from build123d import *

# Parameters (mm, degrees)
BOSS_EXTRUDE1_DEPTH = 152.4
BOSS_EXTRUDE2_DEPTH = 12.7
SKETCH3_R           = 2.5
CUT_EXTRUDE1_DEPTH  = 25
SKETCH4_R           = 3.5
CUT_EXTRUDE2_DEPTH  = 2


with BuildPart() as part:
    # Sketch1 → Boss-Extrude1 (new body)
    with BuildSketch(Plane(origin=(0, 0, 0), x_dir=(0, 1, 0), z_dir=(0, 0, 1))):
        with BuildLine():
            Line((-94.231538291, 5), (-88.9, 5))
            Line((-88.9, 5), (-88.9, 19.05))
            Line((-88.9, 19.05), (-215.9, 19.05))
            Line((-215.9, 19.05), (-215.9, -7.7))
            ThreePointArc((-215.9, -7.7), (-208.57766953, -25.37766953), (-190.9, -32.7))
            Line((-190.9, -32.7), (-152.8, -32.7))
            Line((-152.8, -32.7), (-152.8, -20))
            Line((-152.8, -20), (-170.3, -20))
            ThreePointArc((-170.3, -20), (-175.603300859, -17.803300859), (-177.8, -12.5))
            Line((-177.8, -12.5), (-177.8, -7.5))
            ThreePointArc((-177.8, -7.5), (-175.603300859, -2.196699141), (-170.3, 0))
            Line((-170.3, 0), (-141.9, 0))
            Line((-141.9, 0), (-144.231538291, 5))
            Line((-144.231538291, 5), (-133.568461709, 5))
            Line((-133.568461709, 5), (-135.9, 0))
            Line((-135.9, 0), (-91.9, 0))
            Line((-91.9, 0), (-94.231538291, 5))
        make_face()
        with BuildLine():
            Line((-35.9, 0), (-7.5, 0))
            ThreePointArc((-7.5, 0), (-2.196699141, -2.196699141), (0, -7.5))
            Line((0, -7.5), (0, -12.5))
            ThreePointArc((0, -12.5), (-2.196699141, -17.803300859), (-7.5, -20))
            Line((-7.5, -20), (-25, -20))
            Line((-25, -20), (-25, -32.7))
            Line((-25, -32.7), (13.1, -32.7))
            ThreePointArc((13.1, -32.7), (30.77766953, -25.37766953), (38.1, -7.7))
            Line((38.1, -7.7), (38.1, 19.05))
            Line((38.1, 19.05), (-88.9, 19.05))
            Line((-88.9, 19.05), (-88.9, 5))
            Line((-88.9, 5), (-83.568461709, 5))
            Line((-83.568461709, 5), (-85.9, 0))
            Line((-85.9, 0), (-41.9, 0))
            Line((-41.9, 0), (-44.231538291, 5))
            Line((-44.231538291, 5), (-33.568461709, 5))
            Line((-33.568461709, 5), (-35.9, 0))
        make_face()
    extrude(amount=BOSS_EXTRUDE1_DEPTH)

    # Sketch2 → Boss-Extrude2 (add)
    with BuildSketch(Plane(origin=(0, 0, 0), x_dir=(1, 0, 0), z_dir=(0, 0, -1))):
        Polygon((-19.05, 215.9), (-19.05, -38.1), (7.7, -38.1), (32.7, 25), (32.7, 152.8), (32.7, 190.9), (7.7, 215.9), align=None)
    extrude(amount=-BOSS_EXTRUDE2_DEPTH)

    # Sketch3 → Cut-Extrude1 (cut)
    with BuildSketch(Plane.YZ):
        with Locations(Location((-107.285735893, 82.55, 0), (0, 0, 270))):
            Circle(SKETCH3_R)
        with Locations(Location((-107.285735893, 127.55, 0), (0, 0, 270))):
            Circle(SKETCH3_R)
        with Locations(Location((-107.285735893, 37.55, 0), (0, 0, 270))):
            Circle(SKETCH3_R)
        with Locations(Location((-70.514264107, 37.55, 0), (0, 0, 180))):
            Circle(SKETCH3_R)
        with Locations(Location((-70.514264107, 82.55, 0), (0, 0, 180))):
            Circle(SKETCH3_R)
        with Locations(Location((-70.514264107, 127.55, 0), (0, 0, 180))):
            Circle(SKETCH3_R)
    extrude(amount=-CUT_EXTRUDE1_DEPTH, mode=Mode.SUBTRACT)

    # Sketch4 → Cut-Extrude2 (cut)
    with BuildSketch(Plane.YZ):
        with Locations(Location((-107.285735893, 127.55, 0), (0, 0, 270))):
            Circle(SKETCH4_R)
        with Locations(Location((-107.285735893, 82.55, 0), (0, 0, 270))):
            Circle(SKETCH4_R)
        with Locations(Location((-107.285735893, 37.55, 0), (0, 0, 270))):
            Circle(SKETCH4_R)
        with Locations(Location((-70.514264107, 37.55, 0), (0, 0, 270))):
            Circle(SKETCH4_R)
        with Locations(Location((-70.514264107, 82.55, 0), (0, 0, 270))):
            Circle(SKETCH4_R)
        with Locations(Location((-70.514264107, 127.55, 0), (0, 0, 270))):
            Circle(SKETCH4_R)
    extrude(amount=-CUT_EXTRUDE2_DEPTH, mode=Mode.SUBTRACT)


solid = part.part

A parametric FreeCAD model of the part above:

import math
import FreeCAD as App
import Part
import Sketcher
from FreeCAD import Vector
Q = App.Units.Quantity

doc = App.newDocument("Part")
body = doc.addObject("PartDesign::Body", "Body")

# Sketch on XY plane
sketch1 = body.newObject("Sketcher::SketchObject", "Sketch")
sketch1.AttachmentSupport = (doc.getObject("XY_Plane"), [""])
sketch1.MapMode = "FlatFace"
sketch1.addGeometry([
    Part.LineSegment(Vector(-5, -94.231538, 0), Vector(-5, -83.568462, 0)),  # 0
    Part.LineSegment(Vector(-5, -83.568462, 0), Vector(0, -85.9, 0)),  # 1
    Part.LineSegment(Vector(0, -85.9, 0), Vector(0, -41.9, 0)),  # 2
    Part.LineSegment(Vector(0, -41.9, 0), Vector(-5, -44.231538, 0)),  # 3
    Part.LineSegment(Vector(-5, -44.231538, 0), Vector(-5, -33.568462, 0)),  # 4
    Part.LineSegment(Vector(-5, -33.568462, 0), Vector(0, -35.9, 0)),  # 5
    Part.LineSegment(Vector(0, -35.9, 0), Vector(0, -7.5, 0)),  # 6
    Part.ArcOfCircle(Part.Circle(Vector(7.5, -7.5, 0), Vector(0, 0, 1), 7.5), math.radians(90), math.radians(180)),  # 7
    Part.LineSegment(Vector(7.5, 0, 0), Vector(12.5, 0, 0)),  # 8
    Part.ArcOfCircle(Part.Circle(Vector(12.5, -7.5, 0), Vector(0, 0, 1), 7.5), math.radians(0), math.radians(90)),  # 9
    Part.LineSegment(Vector(20, -7.5, 0), Vector(20, -25, 0)),  # 10
    Part.LineSegment(Vector(20, -25, 0), Vector(32.7, -25, 0)),  # 11
    Part.LineSegment(Vector(32.7, -25, 0), Vector(32.7, 13.1, 0)),  # 12
    Part.ArcOfCircle(Part.Circle(Vector(7.7, 13.1, 0), Vector(0, 0, 1), 25), math.radians(0), math.radians(90)),  # 13
    Part.LineSegment(Vector(7.7, 38.1, 0), Vector(-19.05, 38.1, 0)),  # 14
    Part.LineSegment(Vector(-19.05, 38.1, 0), Vector(-19.05, -215.9, 0)),  # 15
    Part.LineSegment(Vector(-19.05, -215.9, 0), Vector(7.7, -215.9, 0)),  # 16
    Part.ArcOfCircle(Part.Circle(Vector(7.7, -190.9, 0), Vector(0, 0, 1), 25), math.radians(-90), math.radians(0)),  # 17
    Part.LineSegment(Vector(32.7, -190.9, 0), Vector(32.7, -152.8, 0)),  # 18
    Part.LineSegment(Vector(32.7, -152.8, 0), Vector(20, -152.8, 0)),  # 19
    Part.LineSegment(Vector(20, -152.8, 0), Vector(20, -170.3, 0)),  # 20
    Part.ArcOfCircle(Part.Circle(Vector(12.5, -170.3, 0), Vector(0, 0, 1), 7.5), math.radians(-90), math.radians(0)),  # 21
    Part.LineSegment(Vector(12.5, -177.8, 0), Vector(7.5, -177.8, 0)),  # 22
    Part.ArcOfCircle(Part.Circle(Vector(7.5, -170.3, 0), Vector(0, 0, 1), 7.5), math.radians(180), math.radians(270)),  # 23
    Part.LineSegment(Vector(0, -170.3, 0), Vector(0, -141.9, 0)),  # 24
    Part.LineSegment(Vector(0, -141.9, 0), Vector(-5, -144.231538, 0)),  # 25
    Part.LineSegment(Vector(-5, -144.231538, 0), Vector(-5, -133.568462, 0)),  # 26
    Part.LineSegment(Vector(-5, -133.568462, 0), Vector(0, -135.9, 0)),  # 27
    Part.LineSegment(Vector(0, -135.9, 0), Vector(0, -91.9, 0)),  # 28
    Part.LineSegment(Vector(0, -91.9, 0), Vector(-5, -94.231538, 0)),  # 29
], False)
sketch1.addConstraint([
    Sketcher.Constraint("Coincident", 0, 2, 1, 1),
    Sketcher.Constraint("Coincident", 1, 2, 2, 1),
    Sketcher.Constraint("Coincident", 2, 2, 3, 1),
    Sketcher.Constraint("Coincident", 3, 2, 4, 1),
    Sketcher.Constraint("Coincident", 4, 2, 5, 1),
    Sketcher.Constraint("Coincident", 5, 2, 6, 1),
    Sketcher.Constraint("Tangent", 6, 2, 7, 2),
    Sketcher.Constraint("Tangent", 7, 1, 8, 1),
    Sketcher.Constraint("Tangent", 8, 2, 9, 2),
    Sketcher.Constraint("Tangent", 9, 1, 10, 1),
    Sketcher.Constraint("Coincident", 10, 2, 11, 1),
    Sketcher.Constraint("Coincident", 11, 2, 12, 1),
    Sketcher.Constraint("Tangent", 12, 2, 13, 1),
    Sketcher.Constraint("Tangent", 13, 2, 14, 1),
    Sketcher.Constraint("Coincident", 14, 2, 15, 1),
    Sketcher.Constraint("Coincident", 15, 2, 16, 1),
    Sketcher.Constraint("Tangent", 16, 2, 17, 1),
    Sketcher.Constraint("Tangent", 17, 2, 18, 1),
    Sketcher.Constraint("Coincident", 18, 2, 19, 1),
    Sketcher.Constraint("Coincident", 19, 2, 20, 1),
    Sketcher.Constraint("Tangent", 20, 2, 21, 2),
    Sketcher.Constraint("Tangent", 21, 1, 22, 1),
    Sketcher.Constraint("Tangent", 22, 2, 23, 2),
    Sketcher.Constraint("Tangent", 23, 1, 24, 1),
    Sketcher.Constraint("Coincident", 24, 2, 25, 1),
    Sketcher.Constraint("Coincident", 25, 2, 26, 1),
    Sketcher.Constraint("Coincident", 26, 2, 27, 1),
    Sketcher.Constraint("Coincident", 27, 2, 28, 1),
    Sketcher.Constraint("Coincident", 28, 2, 29, 1),
    Sketcher.Constraint("Coincident", 29, 2, 0, 1),
    Sketcher.Constraint("Vertical", 0),
    Sketcher.Constraint("Vertical", 2),
    Sketcher.Constraint("Vertical", 4),
    Sketcher.Constraint("Vertical", 6),
    Sketcher.Constraint("Horizontal", 8),
    Sketcher.Constraint("Vertical", 10),
    Sketcher.Constraint("Horizontal", 11),
    Sketcher.Constraint("Vertical", 12),
    Sketcher.Constraint("Horizontal", 14),
    Sketcher.Constraint("Vertical", 15),
    Sketcher.Constraint("Horizontal", 16),
    Sketcher.Constraint("Vertical", 18),
    Sketcher.Constraint("Horizontal", 19),
    Sketcher.Constraint("Vertical", 20),
    Sketcher.Constraint("Horizontal", 22),
    Sketcher.Constraint("Vertical", 24),
    Sketcher.Constraint("Vertical", 26),
    Sketcher.Constraint("Vertical", 28),
    Sketcher.Constraint("Equal", 7, 9),
    Sketcher.Constraint("Equal", 13, 17),
    Sketcher.Constraint("Equal", 9, 21),
    Sketcher.Constraint("Equal", 21, 23),
    Sketcher.Constraint("PointOnObject", 1, 2, -2),
    Sketcher.Constraint("PointOnObject", 5, 2, -2),
    Sketcher.Constraint("PointOnObject", 7, 1, -1),
    Sketcher.Constraint("PointOnObject", 23, 1, -2),
    Sketcher.Constraint("PointOnObject", 27, 2, -2),
    Sketcher.Constraint("Parallel", 1, 5),
    Sketcher.Constraint("Parallel", 3, 25),
    Sketcher.Constraint("Parallel", 5, 27),
    Sketcher.Constraint("Parallel", 25, 29),
    Sketcher.Constraint("Vertical", 13, 3, 17, 3),
    Sketcher.Constraint("Vertical", 9, 3, 21, 3),
    Sketcher.Constraint("Vertical", 0, 2, 3, 2),
    Sketcher.Constraint("Vertical", 4, 2, 25, 2),
    Sketcher.Constraint("Equal", 0, 4),
    Sketcher.Constraint("Equal", 12, 18),
    Sketcher.Constraint("Equal", 10, 20),
    Sketcher.Constraint("Equal", 6, 24),
    Sketcher.Constraint("Equal", 4, 26),
    Sketcher.Constraint("Equal", 2, 28),
    Sketcher.Constraint("Equal", 1, 3),
    Sketcher.Constraint("Radius", 13, Q("25 mm")),
    Sketcher.Constraint("Radius", 7, Q("7.5 mm")),
    Sketcher.Constraint("DistanceX", 8, 1, 8, 2, Q("5 mm")),
    Sketcher.Constraint("DistanceY", 2, 1, 2, 2, Q("44 mm")),
    Sketcher.Constraint("DistanceY", 15, 2, 15, 1, Q("254 mm")),
    Sketcher.Constraint("Angle", 1, Q("-25 deg")),
    Sketcher.Constraint("DistanceX", 11, 1, 11, 2, Q("12.7 mm")),
    Sketcher.Constraint("DistanceY", 6, 1, 6, 2, Q("28.4 mm")),
    Sketcher.Constraint("DistanceY", 10, 2, 10, 1, Q("17.5 mm")),
    Sketcher.Constraint("DistanceY", 12, 1, 12, 2, Q("38.1 mm")),
    Sketcher.Constraint("DistanceX", 0, 2, -1, 1, Q("5 mm")),
    Sketcher.Constraint("DistanceX", 14, 2, 14, 1, Q("26.75 mm")),
])
pad1 = body.newObject("PartDesign::Pad", "Pad")
pad1.Profile = sketch1
pad1.Length = 152.4

# Sketch on XY plane
sketch2 = body.newObject("Sketcher::SketchObject", "Sketch001")
sketch2.AttachmentSupport = (doc.getObject("XY_Plane"), [""])
sketch2.MapMode = "FlatFace"
sketch2.addGeometry([
    Part.LineSegment(Vector(-19.05, -215.9, 0), Vector(-19.05, 38.1, 0)),  # 0
    Part.LineSegment(Vector(-19.05, 38.1, 0), Vector(7.7, 38.1, 0)),  # 1
    Part.LineSegment(Vector(7.7, 38.1, 0), Vector(32.7, -25, 0)),  # 2
    Part.LineSegment(Vector(32.7, -25, 0), Vector(32.7, -190.9, 0)),  # 3
    Part.LineSegment(Vector(32.7, -190.9, 0), Vector(7.7, -215.9, 0)),  # 4
    Part.LineSegment(Vector(7.7, -215.9, 0), Vector(-19.05, -215.9, 0)),  # 5
], False)
sketch2.addConstraint([
    Sketcher.Constraint("Coincident", 0, 2, 1, 1),
    Sketcher.Constraint("Coincident", 1, 2, 2, 1),
    Sketcher.Constraint("Coincident", 2, 2, 3, 1),
    Sketcher.Constraint("Coincident", 3, 2, 4, 1),
    Sketcher.Constraint("Coincident", 4, 2, 5, 1),
    Sketcher.Constraint("Coincident", 5, 2, 0, 1),
    Sketcher.Constraint("Vertical", 0),
    Sketcher.Constraint("Horizontal", 1),
    Sketcher.Constraint("Vertical", 3),
    Sketcher.Constraint("Horizontal", 5),
    Sketcher.Constraint("Vertical", 1, 2, 4, 2),
    Sketcher.Constraint("DistanceY", 0, 1, 0, 2, Q("254 mm")),
    Sketcher.Constraint("Angle", 4, Q("-135 deg")),
    Sketcher.Constraint("DistanceY", 3, 2, 3, 1, Q("165.9 mm")),
    Sketcher.Constraint("DistanceY", 2, 2, -1, 1, Q("25 mm")),
    Sketcher.Constraint("DistanceX", 1, 2, 2, 2, Q("25 mm")),
    Sketcher.Constraint("DistanceX", 1, 1, 1, 2, Q("26.75 mm")),
    Sketcher.Constraint("DistanceX", -1, 1, 1, 2, Q("7.7 mm")),
])
pad2 = body.newObject("PartDesign::Pad", "Pad001")
pad2.Profile = sketch2
pad2.Length = 12.7

# Sketch on YZ plane
sketch3 = body.newObject("Sketcher::SketchObject", "Sketch002")
sketch3.AttachmentSupport = (doc.getObject("YZ_Plane"), [""])
sketch3.MapMode = "FlatFace"
sketch3.addGeometry([
    Part.Circle(Vector(-107.285736, 82.55, 0), Vector(0, 0, 1), 2.5),  # 0
    Part.Circle(Vector(-107.285736, 127.55, 0), Vector(0, 0, 1), 2.5),  # 1
    Part.Circle(Vector(-107.285736, 37.55, 0), Vector(0, 0, 1), 2.5),  # 2
    Part.Circle(Vector(-70.514264, 37.55, 0), Vector(0, 0, 1), 2.5),  # 3
    Part.Circle(Vector(-70.514264, 82.55, 0), Vector(0, 0, 1), 2.5),  # 4
    Part.Circle(Vector(-70.514264, 127.55, 0), Vector(0, 0, 1), 2.5),  # 5
], False)
sketch3.addConstraint([
    Sketcher.Constraint("Equal", 0, 1),
    Sketcher.Constraint("Equal", 1, 2),
    Sketcher.Constraint("Equal", 2, 3),
    Sketcher.Constraint("Equal", 3, 4),
    Sketcher.Constraint("Equal", 4, 5),
    Sketcher.Constraint("Horizontal", 2, 3, 3, 3),
    Sketcher.Constraint("Horizontal", 0, 3, 4, 3),
    Sketcher.Constraint("Horizontal", 1, 3, 5, 3),
    Sketcher.Constraint("Vertical", 0, 3, 1, 3),
    Sketcher.Constraint("Vertical", 1, 3, 2, 3),
    Sketcher.Constraint("Vertical", 3, 3, 4, 3),
    Sketcher.Constraint("Vertical", 4, 3, 5, 3),
    Sketcher.Constraint("Diameter", 0, Q("5 mm")),
    Sketcher.Constraint("DistanceY", 0, 3, 1, 3, Q("45 mm")),
    Sketcher.Constraint("DistanceY", 2, 3, 0, 3, Q("45 mm")),
    Sketcher.Constraint("DistanceY", -1, 1, 0, 3, Q("82.55 mm")),
    Sketcher.Constraint("DistanceX", 2, 3, 3, 3, Q("36.771472 mm")),
    Sketcher.Constraint("DistanceX", 0, 3, -1, 1, Q("107.285736 mm")),
])
pocket1 = body.newObject("PartDesign::Pocket", "Pocket")
pocket1.Profile = sketch3
pocket1.Length = 25

# Sketch on YZ plane
sketch4 = body.newObject("Sketcher::SketchObject", "Sketch003")
sketch4.AttachmentSupport = (doc.getObject("YZ_Plane"), [""])
sketch4.MapMode = "FlatFace"
sketch4.addGeometry([
    Part.Circle(Vector(-107.285736, 127.55, 0), Vector(0, 0, 1), 3.5),  # 0
    Part.Circle(Vector(-107.285736, 82.55, 0), Vector(0, 0, 1), 3.5),  # 1
    Part.Circle(Vector(-107.285736, 37.55, 0), Vector(0, 0, 1), 3.5),  # 2
    Part.Circle(Vector(-70.514264, 37.55, 0), Vector(0, 0, 1), 3.5),  # 3
    Part.Circle(Vector(-70.514264, 82.55, 0), Vector(0, 0, 1), 3.5),  # 4
    Part.Circle(Vector(-70.514264, 127.55, 0), Vector(0, 0, 1), 3.5),  # 5
], False)
sketch4.addConstraint([
    Sketcher.Constraint("Equal", 0, 1),
    Sketcher.Constraint("Equal", 1, 2),
    Sketcher.Constraint("Equal", 2, 3),
    Sketcher.Constraint("Equal", 3, 4),
    Sketcher.Constraint("Equal", 4, 5),
    Sketcher.Constraint("Horizontal", 2, 3, 3, 3),
    Sketcher.Constraint("Horizontal", 1, 3, 4, 3),
    Sketcher.Constraint("Horizontal", 0, 3, 5, 3),
    Sketcher.Constraint("Vertical", 0, 3, 1, 3),
    Sketcher.Constraint("Vertical", 1, 3, 2, 3),
    Sketcher.Constraint("Vertical", 3, 3, 4, 3),
    Sketcher.Constraint("Vertical", 4, 3, 5, 3),
    Sketcher.Constraint("Diameter", 0, Q("7 mm")),
    Sketcher.Constraint("DistanceY", 1, 3, 0, 3, Q("45 mm")),
    Sketcher.Constraint("DistanceY", 2, 3, 1, 3, Q("45 mm")),
    Sketcher.Constraint("DistanceY", -1, 1, 0, 3, Q("127.55 mm")),
    Sketcher.Constraint("DistanceX", 2, 3, 3, 3, Q("36.771472 mm")),
    Sketcher.Constraint("DistanceX", 0, 3, -1, 1, Q("107.285736 mm")),
])
pocket2 = body.newObject("PartDesign::Pocket", "Pocket001")
pocket2.Profile = sketch4
pocket2.Length = 2

doc.recompute()
